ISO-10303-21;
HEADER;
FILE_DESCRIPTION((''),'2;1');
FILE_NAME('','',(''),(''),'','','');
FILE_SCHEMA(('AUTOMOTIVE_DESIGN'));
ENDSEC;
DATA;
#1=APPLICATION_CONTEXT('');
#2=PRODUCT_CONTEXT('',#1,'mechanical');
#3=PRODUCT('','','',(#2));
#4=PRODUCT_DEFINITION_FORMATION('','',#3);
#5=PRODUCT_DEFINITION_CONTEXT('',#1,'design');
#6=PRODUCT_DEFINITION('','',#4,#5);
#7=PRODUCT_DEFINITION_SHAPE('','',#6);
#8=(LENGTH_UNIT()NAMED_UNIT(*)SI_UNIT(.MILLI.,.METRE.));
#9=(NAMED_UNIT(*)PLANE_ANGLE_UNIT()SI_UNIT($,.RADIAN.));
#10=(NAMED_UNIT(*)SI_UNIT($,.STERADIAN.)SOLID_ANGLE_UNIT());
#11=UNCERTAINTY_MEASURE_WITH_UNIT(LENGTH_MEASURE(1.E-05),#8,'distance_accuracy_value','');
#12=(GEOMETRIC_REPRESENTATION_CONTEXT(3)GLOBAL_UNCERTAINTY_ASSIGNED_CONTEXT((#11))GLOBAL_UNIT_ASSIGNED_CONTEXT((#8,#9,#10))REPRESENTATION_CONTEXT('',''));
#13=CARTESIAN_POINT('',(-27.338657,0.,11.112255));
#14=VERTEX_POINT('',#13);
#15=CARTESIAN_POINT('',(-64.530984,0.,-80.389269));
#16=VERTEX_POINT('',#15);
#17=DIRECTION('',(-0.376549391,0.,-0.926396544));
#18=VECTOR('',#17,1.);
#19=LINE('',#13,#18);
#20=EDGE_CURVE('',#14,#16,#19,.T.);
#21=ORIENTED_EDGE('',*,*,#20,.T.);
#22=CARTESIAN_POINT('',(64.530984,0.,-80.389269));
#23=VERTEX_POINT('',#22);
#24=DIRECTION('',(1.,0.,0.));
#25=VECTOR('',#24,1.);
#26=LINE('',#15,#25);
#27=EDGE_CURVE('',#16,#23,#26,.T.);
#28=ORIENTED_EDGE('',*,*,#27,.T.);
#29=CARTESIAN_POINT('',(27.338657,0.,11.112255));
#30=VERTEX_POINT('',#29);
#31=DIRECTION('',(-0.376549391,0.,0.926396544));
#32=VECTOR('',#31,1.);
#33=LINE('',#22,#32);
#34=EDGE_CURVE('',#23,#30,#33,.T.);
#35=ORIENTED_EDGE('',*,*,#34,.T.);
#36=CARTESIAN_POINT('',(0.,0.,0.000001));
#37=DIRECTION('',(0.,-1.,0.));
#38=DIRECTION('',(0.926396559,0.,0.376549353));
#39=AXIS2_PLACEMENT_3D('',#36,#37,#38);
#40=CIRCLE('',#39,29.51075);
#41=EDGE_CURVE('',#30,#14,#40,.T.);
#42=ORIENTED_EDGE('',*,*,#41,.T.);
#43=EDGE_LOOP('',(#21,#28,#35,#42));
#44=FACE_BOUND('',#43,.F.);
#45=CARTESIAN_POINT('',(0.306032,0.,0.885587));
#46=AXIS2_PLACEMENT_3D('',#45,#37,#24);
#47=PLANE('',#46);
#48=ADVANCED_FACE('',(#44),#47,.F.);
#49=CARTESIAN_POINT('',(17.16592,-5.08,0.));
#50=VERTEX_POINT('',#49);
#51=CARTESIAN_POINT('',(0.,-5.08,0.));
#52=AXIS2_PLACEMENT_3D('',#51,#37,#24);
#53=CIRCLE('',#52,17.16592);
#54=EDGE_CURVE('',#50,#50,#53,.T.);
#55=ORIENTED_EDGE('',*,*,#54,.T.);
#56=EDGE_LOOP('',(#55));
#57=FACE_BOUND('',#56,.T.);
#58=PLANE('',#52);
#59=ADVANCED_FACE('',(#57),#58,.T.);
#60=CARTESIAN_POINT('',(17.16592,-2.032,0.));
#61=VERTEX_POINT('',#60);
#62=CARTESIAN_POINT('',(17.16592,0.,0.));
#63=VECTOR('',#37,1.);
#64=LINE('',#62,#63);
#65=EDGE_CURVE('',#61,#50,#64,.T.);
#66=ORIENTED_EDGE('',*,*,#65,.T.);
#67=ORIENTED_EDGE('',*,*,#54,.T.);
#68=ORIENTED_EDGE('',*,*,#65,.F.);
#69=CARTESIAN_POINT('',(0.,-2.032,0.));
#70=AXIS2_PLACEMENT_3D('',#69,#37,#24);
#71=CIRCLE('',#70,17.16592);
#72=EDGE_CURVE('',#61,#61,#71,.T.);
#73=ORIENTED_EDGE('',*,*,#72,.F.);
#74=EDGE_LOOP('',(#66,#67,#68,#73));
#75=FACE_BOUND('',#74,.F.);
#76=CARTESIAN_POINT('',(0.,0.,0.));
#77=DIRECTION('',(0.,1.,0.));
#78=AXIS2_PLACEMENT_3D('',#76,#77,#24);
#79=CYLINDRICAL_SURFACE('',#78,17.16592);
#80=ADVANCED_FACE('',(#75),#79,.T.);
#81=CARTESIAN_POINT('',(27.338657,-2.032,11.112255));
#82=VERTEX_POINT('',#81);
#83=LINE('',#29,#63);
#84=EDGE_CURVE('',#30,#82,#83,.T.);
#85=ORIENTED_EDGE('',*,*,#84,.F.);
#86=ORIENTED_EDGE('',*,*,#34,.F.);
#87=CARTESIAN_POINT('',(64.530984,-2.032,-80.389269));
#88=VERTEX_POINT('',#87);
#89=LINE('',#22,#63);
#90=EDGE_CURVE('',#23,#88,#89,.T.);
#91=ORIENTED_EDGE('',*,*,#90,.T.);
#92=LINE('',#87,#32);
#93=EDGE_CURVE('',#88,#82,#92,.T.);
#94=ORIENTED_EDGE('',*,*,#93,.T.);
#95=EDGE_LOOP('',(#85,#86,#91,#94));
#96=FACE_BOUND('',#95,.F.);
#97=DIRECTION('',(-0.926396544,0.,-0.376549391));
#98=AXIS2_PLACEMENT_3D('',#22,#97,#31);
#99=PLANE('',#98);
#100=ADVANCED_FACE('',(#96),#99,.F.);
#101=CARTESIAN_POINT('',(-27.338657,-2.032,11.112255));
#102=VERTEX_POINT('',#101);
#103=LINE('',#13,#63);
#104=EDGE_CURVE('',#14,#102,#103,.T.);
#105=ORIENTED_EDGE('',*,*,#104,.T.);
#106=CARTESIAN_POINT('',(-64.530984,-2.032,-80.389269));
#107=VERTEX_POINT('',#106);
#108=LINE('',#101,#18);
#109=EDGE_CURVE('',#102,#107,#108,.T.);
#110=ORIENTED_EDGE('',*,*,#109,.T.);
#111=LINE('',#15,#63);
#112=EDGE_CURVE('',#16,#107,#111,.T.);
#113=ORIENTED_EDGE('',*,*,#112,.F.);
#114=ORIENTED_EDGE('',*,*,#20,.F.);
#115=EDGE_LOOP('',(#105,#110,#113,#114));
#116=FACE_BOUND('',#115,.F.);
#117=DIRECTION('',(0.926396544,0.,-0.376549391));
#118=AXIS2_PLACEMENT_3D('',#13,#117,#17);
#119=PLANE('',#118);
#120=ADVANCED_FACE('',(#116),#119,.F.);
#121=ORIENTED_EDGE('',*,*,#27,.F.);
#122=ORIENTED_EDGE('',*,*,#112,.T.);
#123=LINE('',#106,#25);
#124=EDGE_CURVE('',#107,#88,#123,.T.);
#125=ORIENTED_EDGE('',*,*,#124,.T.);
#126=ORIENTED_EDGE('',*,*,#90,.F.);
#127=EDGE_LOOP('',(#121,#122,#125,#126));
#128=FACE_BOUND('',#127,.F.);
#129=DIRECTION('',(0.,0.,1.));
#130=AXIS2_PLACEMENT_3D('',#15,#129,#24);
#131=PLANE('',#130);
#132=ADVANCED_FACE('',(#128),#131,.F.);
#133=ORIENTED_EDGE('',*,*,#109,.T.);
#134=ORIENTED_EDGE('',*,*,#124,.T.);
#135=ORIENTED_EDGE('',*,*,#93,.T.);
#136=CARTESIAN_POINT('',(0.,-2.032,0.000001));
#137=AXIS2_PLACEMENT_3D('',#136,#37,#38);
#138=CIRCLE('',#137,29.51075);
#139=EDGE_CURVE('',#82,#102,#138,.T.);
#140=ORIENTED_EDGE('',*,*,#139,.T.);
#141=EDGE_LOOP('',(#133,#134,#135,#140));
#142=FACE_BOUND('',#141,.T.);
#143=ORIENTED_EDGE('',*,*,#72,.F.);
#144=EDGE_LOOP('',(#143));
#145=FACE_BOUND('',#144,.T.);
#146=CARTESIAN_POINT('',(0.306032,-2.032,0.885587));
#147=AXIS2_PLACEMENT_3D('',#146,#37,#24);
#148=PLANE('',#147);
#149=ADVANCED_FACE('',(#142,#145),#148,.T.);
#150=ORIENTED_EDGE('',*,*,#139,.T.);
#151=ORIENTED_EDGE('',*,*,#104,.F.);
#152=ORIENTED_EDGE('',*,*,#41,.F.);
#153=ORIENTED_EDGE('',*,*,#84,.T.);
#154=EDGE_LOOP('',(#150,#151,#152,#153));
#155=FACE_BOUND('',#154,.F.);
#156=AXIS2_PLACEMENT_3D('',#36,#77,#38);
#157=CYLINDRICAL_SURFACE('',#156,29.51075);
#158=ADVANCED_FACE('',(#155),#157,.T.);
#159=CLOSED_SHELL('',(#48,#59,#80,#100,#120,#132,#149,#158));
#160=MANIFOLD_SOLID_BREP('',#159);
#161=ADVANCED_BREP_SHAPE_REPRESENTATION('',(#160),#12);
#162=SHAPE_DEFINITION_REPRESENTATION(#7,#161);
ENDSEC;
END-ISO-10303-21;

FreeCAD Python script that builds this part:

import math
import FreeCAD as App
import Part
import Sketcher
from FreeCAD import Vector

doc = App.newDocument("Part")
params = doc.addObject("Spreadsheet::Sheet", "Params")
for row, (alias, value) in enumerate([
    ("pad1_length", "0.08 in"),
    ("pad2_length", "0.2 in"),
], start=1):
    params.set(f"A{row}", alias)
    params.set(f"B{row}", "=" + value)
    params.setAlias(f"B{row}", alias)

body = doc.addObject("PartDesign::Body", "Body")

# Sketch on XZ plane
sketch1 = body.newObject("Sketcher::SketchObject", "Sketch")
sketch1.AttachmentSupport = (doc.getObject("XZ_Plane"), [""])
sketch1.MapMode = "FlatFace"
sketch1.addGeometry([
    Part.ArcOfCircle(Part.Circle(Vector(0, 0, 0), Vector(0, 0, 1), 30), math.radians(22), math.radians(158)),  # 0
    Part.LineSegment(Vector(-27, 11, 0), Vector(-65, -80, 0)),  # 1
    Part.LineSegment(Vector(-65, -80, 0), Vector(65, -80, 0)),  # 2
    Part.LineSegment(Vector(65, -80, 0), Vector(27, 11, 0)),  # 3
    Part.Circle(Vector(0, 0, 0), Vector(0, 0, 1), 17),  # 4
], False)
sketch1.addConstraint([
    Sketcher.Constraint("Tangent", 0, 2, 1, 1),
    Sketcher.Constraint("Coincident", 1, 2, 2, 1),
    Sketcher.Constraint("Coincident", 2, 2, 3, 1),
    Sketcher.Constraint("Tangent", 3, 2, 0, 1),
    Sketcher.Constraint("Horizontal", 2),
    Sketcher.Constraint("Coincident", 0, 3, -1, 1),
    Sketcher.Constraint("Coincident", 4, 3, -1, 1),
    Sketcher.Constraint("Horizontal", 0, 2, 3, 2),
    Sketcher.Constraint("Diameter", 4, 34.33184),
    Sketcher.Constraint("Radius", 0, 29.51075),
    Sketcher.Constraint("DistanceX", 2, 1, 2, 2, 129.061968),
    Sketcher.Constraint("DistanceY", 1, 2, -1, 1, 80.389269),
])
pad1 = body.newObject("PartDesign::Pad", "Pad")
pad1.Profile = sketch1
pad1.setExpression("Length", "Params.pad1_length")

# Sketch on XZ plane
sketch2 = body.newObject("Sketcher::SketchObject", "Sketch001")
sketch2.AttachmentSupport = (doc.getObject("XZ_Plane"), [""])
sketch2.MapMode = "FlatFace"
sketch2.addGeometry(Part.Circle(Vector(0, 0, 0), Vector(0, 0, 1), 17), False)
sketch2.addConstraint([
    Sketcher.Constraint("Coincident", 0, 3, -1, 1),
    Sketcher.Constraint("Diameter", 0, 34.33184),
])
pad2 = body.newObject("PartDesign::Pad", "Pad001")
pad2.Profile = sketch2
pad2.setExpression("Length", "Params.pad2_length")

doc.recompute()
